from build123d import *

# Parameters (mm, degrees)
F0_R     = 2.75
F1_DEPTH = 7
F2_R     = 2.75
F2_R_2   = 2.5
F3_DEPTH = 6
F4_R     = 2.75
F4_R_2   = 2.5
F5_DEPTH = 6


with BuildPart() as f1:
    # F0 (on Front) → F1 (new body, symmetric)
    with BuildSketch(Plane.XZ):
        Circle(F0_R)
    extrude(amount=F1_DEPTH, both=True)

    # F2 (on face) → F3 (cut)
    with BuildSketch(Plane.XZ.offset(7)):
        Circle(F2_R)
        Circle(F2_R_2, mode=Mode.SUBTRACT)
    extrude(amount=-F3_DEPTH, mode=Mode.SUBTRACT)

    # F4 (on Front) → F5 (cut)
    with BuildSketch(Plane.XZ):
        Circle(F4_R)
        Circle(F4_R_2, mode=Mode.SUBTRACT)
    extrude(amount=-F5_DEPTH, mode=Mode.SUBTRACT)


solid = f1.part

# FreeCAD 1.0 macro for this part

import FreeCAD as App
import Part
import Sketcher

V = App.Vector
Q = App.Units.Quantity

doc = App.newDocument("Part")
params = doc.addObject("Spreadsheet::Sheet", "Params")
for row, (alias, value) in enumerate([
    ("sketch1_diameter", "5.5 mm"),
    ("pad1_length", "14 mm"),
    ("sketch2_diameter", "5 mm"),
    ("sketch2_diameter2", "5.5 mm"),
    ("pocket1_length", "6 mm"),
    ("sketch3_diameter", "5 mm"),
    ("sketch3_diameter2", "5.5 mm"),
    ("pocket2_length", "6 mm"),
], start=1):
    params.set(f"A{row}", alias)
    params.set(f"B{row}", "=" + value)
    params.setAlias(f"B{row}", alias)

body = doc.addObject("PartDesign::Body", "Body")

# Sketch on XZ plane
sketch1 = body.newObject("Sketcher::SketchObject", "Sketch")
sketch1.AttachmentSupport = (doc.getObject("XZ_Plane"), [""])
sketch1.MapMode = "FlatFace"
sketch1.addGeometry(Part.Circle(V(0, 0, 0), V(0, 0, 1), 2.8), False)
sketch1.addConstraint([
    Sketcher.Constraint("Coincident", 0, 3, -1, 1),
    Sketcher.Constraint("Diameter", 0, Q("5.5 mm")),
])
sketch1.setExpression("Constraints[1]", "Params.sketch1_diameter")
pad1 = body.newObject("PartDesign::Pad", "Pad")
pad1.Profile = sketch1
pad1.setExpression("Length", "Params.pad1_length")
pad1.Midplane = True

# Sketch on XZ plane
sketch2 = body.newObject("Sketcher::SketchObject", "Sketch001")
sketch2.AttachmentSupport = (doc.getObject("XZ_Plane"), [""])
sketch2.MapMode = "FlatFace"
sketch2.AttachmentOffset = App.Placement(V(0, 0, 7), App.Rotation())
sketch2.addGeometry([
    Part.Circle(V(0, 0, 0), V(0, 0, 1), 2.8),
    Part.Circle(V(0, 0, 0), V(0, 0, 1), 2.5),
], False)
sketch2.addConstraint([
    Sketcher.Constraint("Coincident", 0, 3, -1, 1),
    Sketcher.Constraint("Coincident", 1, 3, -1, 1),
    Sketcher.Constraint("Diameter", 1, Q("5 mm")),
    Sketcher.Constraint("Diameter", 0, Q("5.5 mm")),
])
sketch2.setExpression("Constraints[2]", "Params.sketch2_diameter")
sketch2.setExpression("Constraints[3]", "Params.sketch2_diameter2")
pocket1 = body.newObject("PartDesign::Pocket", "Pocket")
pocket1.Profile = sketch2
pocket1.setExpression("Length", "Params.pocket1_length")

# Sketch on XZ plane
sketch3 = body.newObject("Sketcher::SketchObject", "Sketch002")
sketch3.AttachmentSupport = (doc.getObject("XZ_Plane"), [""])
sketch3.MapMode = "FlatFace"
sketch3.addGeometry([
    Part.Circle(V(0, 0, 0), V(0, 0, 1), 2.8),
    Part.Circle(V(0, 0, 0), V(0, 0, 1), 2.5),
], False)
sketch3.addConstraint([
    Sketcher.Constraint("Coincident", 0, 3, -1, 1),
    Sketcher.Constraint("Coincident", 1, 3, -1, 1),
    Sketcher.Constraint("Diameter", 1, Q("5 mm")),
    Sketcher.Constraint("Diameter", 0, Q("5.5 mm")),
])
sketch3.setExpression("Constraints[2]", "Params.sketch3_diameter")
sketch3.setExpression("Constraints[3]", "Params.sketch3_diameter2")
pocket2 = body.newObject("PartDesign::Pocket", "Pocket001")
pocket2.Profile = sketch3
pocket2.setExpression("Length", "Params.pocket2_length")

doc.recompute()
